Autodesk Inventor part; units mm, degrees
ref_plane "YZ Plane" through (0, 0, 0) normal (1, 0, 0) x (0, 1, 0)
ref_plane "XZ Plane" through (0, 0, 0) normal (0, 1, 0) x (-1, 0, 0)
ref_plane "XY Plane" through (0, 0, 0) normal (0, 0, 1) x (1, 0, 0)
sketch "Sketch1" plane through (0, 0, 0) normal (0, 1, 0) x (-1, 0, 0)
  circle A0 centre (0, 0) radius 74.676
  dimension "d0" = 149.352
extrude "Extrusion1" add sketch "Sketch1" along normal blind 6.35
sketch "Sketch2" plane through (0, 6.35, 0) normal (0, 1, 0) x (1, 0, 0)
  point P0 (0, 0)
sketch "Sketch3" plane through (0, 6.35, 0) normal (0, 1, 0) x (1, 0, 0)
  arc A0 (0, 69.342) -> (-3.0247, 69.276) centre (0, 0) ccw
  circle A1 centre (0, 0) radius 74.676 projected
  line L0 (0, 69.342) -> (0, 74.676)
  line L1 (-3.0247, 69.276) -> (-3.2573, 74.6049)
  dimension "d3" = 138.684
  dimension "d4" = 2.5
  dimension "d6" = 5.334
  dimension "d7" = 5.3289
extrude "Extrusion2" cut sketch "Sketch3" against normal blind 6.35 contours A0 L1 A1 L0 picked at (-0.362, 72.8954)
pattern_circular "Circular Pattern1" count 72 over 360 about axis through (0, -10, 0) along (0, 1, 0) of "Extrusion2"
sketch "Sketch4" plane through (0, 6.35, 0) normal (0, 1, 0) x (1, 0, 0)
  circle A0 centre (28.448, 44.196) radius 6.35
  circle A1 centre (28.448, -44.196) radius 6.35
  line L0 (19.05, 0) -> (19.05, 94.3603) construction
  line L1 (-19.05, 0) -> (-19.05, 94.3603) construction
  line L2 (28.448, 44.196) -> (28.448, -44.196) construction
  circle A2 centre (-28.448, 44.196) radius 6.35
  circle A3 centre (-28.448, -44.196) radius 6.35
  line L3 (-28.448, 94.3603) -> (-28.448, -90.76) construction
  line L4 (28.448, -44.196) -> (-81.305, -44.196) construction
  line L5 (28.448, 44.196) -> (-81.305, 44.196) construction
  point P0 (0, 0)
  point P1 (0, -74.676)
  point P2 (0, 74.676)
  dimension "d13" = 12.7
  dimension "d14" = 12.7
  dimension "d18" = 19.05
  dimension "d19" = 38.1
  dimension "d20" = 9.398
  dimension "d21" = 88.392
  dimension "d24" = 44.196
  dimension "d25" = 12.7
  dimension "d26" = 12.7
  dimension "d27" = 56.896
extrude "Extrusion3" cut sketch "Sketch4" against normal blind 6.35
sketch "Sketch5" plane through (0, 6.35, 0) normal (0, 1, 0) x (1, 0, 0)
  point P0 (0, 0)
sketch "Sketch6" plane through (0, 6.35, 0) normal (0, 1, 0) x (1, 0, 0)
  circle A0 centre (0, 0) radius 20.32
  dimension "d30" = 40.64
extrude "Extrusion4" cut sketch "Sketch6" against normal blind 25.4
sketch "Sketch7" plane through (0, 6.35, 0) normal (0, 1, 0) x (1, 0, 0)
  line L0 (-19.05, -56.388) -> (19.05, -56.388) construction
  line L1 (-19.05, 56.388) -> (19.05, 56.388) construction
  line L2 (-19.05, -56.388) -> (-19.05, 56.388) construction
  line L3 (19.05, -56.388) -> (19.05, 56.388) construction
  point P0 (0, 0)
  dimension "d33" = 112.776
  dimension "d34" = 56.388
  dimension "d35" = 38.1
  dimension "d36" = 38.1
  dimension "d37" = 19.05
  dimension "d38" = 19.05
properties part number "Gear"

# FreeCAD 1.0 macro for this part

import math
import FreeCAD as App
import Part
import Sketcher
from FreeCAD import Vector
Q = App.Units.Quantity

doc = App.newDocument("Part")
body = doc.addObject("PartDesign::Body", "Body")

sketch1 = doc.addObject("Sketcher::SketchObject", "Sketch")
body.addObject(sketch1)
sketch1.AttachmentSupport = (doc.XZ_Plane, [""])
sketch1.MapMode = "FlatFace"
sketch1.addGeometry(Part.Circle(Vector(0, 0, 0), Vector(0, 0, 1), 75), False)
sketch1.addConstraint([
    Sketcher.Constraint("Coincident", 0, 3, -1, 1),
    Sketcher.Constraint("Diameter", 0, Q("5.88 in")),
])
pad1 = doc.addObject("PartDesign::Pad", "Pad")
body.addObject(pad1)
pad1.Profile = sketch1
pad1.Length = Q("0.25 in")
pad1.Reversed = True

sketch2 = doc.addObject("Sketcher::SketchObject", "Sketch001")
body.addObject(sketch2)
sketch2.AttachmentSupport = (doc.XZ_Plane, [""])
sketch2.MapMode = "FlatFace"
sketch2.AttachmentOffset = App.Placement(Vector(0, 0, -0.25 * 25.4), App.Rotation())
sketch2.addGeometry([
    Part.ArcOfCircle(Part.Circle(Vector(0, 0, 0), Vector(0, 0, 1), 69.3), math.radians(-92.5), math.radians(-90)),
    Part.LineSegment(Vector(0, -69.3, 0), Vector(0, -74.7, 0)),
    Part.ArcOfCircle(Part.Circle(Vector(0, 0, 0), Vector(0, 0, 1), 74.7), math.radians(-92.5), math.radians(-90)),
    Part.LineSegment(Vector(-3.3, -74.6, 0), Vector(-3, -69.3, 0)),
], False)
sketch2.addConstraint([
    Sketcher.Constraint("Coincident", 0, 2, 1, 1),
    Sketcher.Constraint("Coincident", 1, 2, 2, 2),
    Sketcher.Constraint("Coincident", 2, 1, 3, 1),
    Sketcher.Constraint("Coincident", 3, 2, 0, 1),
    Sketcher.Constraint("Vertical", 1),
    Sketcher.Constraint("Coincident", 0, 3, -1, 1),
    Sketcher.Constraint("Coincident", 2, 3, -1, 1),
    Sketcher.Constraint("PointOnObject", 0, 2, -2),
    Sketcher.Constraint("Radius", 0, Q("2.73 in")),
    Sketcher.Constraint("DistanceY", 1, 2, 1, 1, Q("0.21 in")),
    Sketcher.Constraint("Angle", 3, Q("87.5007 deg")),
    Sketcher.Constraint("DistanceY", 2, 1, -1, 1, Q("2.9372 in")),
])
pocket1 = doc.addObject("PartDesign::Pocket", "Pocket")
body.addObject(pocket1)
pocket1.Profile = sketch2
pocket1.Length = Q("0.25 in")
pocket1.Reversed = True
doc.recompute()

polarpattern = doc.addObject("PartDesign::PolarPattern", "PolarPattern")
body.addObject(polarpattern)
polarpattern.Originals = [pocket1]
polarpattern.Axis = (doc.Y_Axis, [""])
polarpattern.Angle = 360
polarpattern.Occurrences = 72
body.Tip = polarpattern

sketch3 = doc.addObject("Sketcher::SketchObject", "Sketch002")
body.addObject(sketch3)
sketch3.AttachmentSupport = (doc.XZ_Plane, [""])
sketch3.MapMode = "FlatFace"
sketch3.AttachmentOffset = App.Placement(Vector(0, 0, -0.25 * 25.4), App.Rotation())
sketch3.addGeometry([
    Part.Circle(Vector(28, -44, 0), Vector(0, 0, 1), 6),
    Part.Circle(Vector(28, 44, 0), Vector(0, 0, 1), 6),
    Part.Circle(Vector(-28, -44, 0), Vector(0, 0, 1), 6),
    Part.Circle(Vector(-28, 44, 0), Vector(0, 0, 1), 6),
], False)
sketch3.addConstraint([
    Sketcher.Constraint("Equal", 0, 1),
    Sketcher.Constraint("Equal", 1, 2),
    Sketcher.Constraint("Equal", 2, 3),
    Sketcher.Constraint("Symmetric", 1, 3, 2, 3, -1, 1),
    Sketcher.Constraint("Symmetric", 0, 3, 3, 3, -1, 1),
    Sketcher.Constraint("Symmetric", 0, 3, 2, 3, -2),
    Sketcher.Constraint("Diameter", 0, Q("0.5 in")),
    Sketcher.Constraint("DistanceY", 0, 3, -1, 1, Q("1.74 in")),
    Sketcher.Constraint("DistanceX", 2, 3, 0, 3, Q("2.24 in")),
])
pocket2 = doc.addObject("PartDesign::Pocket", "Pocket001")
body.addObject(pocket2)
pocket2.Profile = sketch3
pocket2.Length = Q("0.25 in")
pocket2.Reversed = True

sketch4 = doc.addObject("Sketcher::SketchObject", "Sketch003")
body.addObject(sketch4)
sketch4.AttachmentSupport = (doc.XZ_Plane, [""])
sketch4.MapMode = "FlatFace"
sketch4.AttachmentOffset = App.Placement(Vector(0, 0, -0.25 * 25.4), App.Rotation())
sketch4.addGeometry(Part.Circle(Vector(0, 0, 0), Vector(0, 0, 1), 20), False)
sketch4.addConstraint([
    Sketcher.Constraint("Coincident", 0, 3, -1, 1),
    Sketcher.Constraint("Diameter", 0, Q("1.6 in")),
])
pocket3 = doc.addObject("PartDesign::Pocket", "Pocket002")
body.addObject(pocket3)
pocket3.Profile = sketch4
pocket3.Length = Q("1 in")
pocket3.Reversed = True

doc.recompute()
